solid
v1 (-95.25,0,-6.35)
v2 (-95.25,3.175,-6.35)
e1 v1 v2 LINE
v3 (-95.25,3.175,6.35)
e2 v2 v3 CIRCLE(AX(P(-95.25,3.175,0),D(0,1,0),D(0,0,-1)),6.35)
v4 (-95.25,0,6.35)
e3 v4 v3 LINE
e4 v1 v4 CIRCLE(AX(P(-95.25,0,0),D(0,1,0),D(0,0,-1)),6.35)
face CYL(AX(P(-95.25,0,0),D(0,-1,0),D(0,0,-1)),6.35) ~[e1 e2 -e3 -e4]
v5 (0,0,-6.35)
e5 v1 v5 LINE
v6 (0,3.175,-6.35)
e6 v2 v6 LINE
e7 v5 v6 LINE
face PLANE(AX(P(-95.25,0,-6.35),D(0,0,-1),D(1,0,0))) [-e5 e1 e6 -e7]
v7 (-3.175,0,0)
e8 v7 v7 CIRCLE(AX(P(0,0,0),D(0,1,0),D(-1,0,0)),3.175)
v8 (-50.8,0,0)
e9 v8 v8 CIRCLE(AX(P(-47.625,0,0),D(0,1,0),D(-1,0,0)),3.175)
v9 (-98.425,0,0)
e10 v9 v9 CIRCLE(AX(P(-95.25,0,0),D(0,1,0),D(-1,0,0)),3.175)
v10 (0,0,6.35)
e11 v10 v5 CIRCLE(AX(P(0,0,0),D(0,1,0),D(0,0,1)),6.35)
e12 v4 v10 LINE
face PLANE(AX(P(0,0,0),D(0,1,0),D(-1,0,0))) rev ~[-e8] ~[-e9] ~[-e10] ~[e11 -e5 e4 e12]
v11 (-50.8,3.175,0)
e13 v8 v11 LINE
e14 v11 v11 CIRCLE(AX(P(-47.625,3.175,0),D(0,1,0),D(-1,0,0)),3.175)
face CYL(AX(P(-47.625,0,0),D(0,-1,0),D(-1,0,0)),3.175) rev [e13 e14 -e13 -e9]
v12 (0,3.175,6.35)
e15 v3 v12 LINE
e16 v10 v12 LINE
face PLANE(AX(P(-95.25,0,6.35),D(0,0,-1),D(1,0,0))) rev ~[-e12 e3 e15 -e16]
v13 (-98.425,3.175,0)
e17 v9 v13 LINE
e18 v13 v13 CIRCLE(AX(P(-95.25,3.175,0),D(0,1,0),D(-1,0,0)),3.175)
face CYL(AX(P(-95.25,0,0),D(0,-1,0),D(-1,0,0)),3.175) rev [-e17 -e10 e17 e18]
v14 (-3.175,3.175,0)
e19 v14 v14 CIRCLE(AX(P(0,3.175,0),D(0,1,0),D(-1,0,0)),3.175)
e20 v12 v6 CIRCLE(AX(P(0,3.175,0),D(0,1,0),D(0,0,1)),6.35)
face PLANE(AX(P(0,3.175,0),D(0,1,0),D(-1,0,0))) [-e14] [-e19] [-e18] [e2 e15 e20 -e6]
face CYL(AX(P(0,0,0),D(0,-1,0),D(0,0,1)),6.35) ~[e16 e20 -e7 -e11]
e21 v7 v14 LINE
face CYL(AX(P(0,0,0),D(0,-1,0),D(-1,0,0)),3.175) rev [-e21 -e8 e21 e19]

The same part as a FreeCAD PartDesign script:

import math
import FreeCAD as App
import Part
import Sketcher

V = App.Vector
Q = App.Units.Quantity

doc = App.newDocument("Part")
params = doc.addObject("Spreadsheet::Sheet", "Params")
for row, (alias, value) in enumerate([
    ("sketch1_diameter", "0.25 in"),
    ("sketch1_radius", "0.25 in"),
    ("sketch1_width", "3.75 in"),
    ("pad1_length", "0.125 in"),
], start=1):
    params.set(f"A{row}", alias)
    params.set(f"B{row}", "=" + value)
    params.setAlias(f"B{row}", alias)

body = doc.addObject("PartDesign::Body", "Body")

sketch1 = body.newObject("Sketcher::SketchObject", "Sketch")
sketch1.AttachmentSupport = (doc.getObject("XZ_Plane"), [""])
sketch1.MapMode = "FlatFace"
sketch1.addGeometry([
    Part.ArcOfCircle(Part.Circle(V(-95.2, 0, 0), V(0, 0, 1), 6.3), math.radians(90), math.radians(270)),
    Part.LineSegment(V(-95.2, 6.3, 0), V(0, 6.3, 0)),
    Part.ArcOfCircle(Part.Circle(V(0, 0, 0), V(0, 0, 1), 6.3), math.radians(-90), math.radians(90)),
    Part.LineSegment(V(0, -6.3, 0), V(-95.2, -6.3, 0)),
    Part.Circle(V(0, 0, 0), V(0, 0, 1), 3.2),
    Part.Circle(V(-47.6, 0, 0), V(0, 0, 1), 3.2),
    Part.Circle(V(-95.2, 0, 0), V(0, 0, 1), 3.2),
], False)
sketch1.addConstraint([
    Sketcher.Constraint("Tangent", 0, 1, 1, 1),
    Sketcher.Constraint("Tangent", 1, 2, 2, 2),
    Sketcher.Constraint("Tangent", 2, 1, 3, 1),
    Sketcher.Constraint("Tangent", 3, 2, 0, 2),
    Sketcher.Constraint("Horizontal", 1),
    Sketcher.Constraint("Horizontal", 3),
    Sketcher.Constraint("Coincident", 2, 3, -1, 1),
    Sketcher.Constraint("Coincident", 4, 3, -1, 1),
    Sketcher.Constraint("Coincident", 6, 3, 0, 3),
    Sketcher.Constraint("Equal", 4, 5),
    Sketcher.Constraint("Equal", 5, 6),
    Sketcher.Constraint("PointOnObject", 5, 3, -1),
    Sketcher.Constraint("Diameter", 4, Q("0.25 in")),
    Sketcher.Constraint("Radius", 0, Q("0.25 in")),
    Sketcher.Constraint("DistanceX", 1, 1, 1, 2, Q("3.75 in")),
    Sketcher.Constraint("DistanceX", 5, 3, -1, 1, Q("1.875 in")),
])
sketch1.setExpression("Constraints[12]", "Params.sketch1_diameter")
sketch1.setExpression("Constraints[13]", "Params.sketch1_radius")
sketch1.setExpression("Constraints[14]", "Params.sketch1_width")
pad1 = body.newObject("PartDesign::Pad", "Pad")
pad1.Profile = sketch1
pad1.setExpression("Length", "Params.pad1_length")
pad1.Reversed = True

doc.recompute()
